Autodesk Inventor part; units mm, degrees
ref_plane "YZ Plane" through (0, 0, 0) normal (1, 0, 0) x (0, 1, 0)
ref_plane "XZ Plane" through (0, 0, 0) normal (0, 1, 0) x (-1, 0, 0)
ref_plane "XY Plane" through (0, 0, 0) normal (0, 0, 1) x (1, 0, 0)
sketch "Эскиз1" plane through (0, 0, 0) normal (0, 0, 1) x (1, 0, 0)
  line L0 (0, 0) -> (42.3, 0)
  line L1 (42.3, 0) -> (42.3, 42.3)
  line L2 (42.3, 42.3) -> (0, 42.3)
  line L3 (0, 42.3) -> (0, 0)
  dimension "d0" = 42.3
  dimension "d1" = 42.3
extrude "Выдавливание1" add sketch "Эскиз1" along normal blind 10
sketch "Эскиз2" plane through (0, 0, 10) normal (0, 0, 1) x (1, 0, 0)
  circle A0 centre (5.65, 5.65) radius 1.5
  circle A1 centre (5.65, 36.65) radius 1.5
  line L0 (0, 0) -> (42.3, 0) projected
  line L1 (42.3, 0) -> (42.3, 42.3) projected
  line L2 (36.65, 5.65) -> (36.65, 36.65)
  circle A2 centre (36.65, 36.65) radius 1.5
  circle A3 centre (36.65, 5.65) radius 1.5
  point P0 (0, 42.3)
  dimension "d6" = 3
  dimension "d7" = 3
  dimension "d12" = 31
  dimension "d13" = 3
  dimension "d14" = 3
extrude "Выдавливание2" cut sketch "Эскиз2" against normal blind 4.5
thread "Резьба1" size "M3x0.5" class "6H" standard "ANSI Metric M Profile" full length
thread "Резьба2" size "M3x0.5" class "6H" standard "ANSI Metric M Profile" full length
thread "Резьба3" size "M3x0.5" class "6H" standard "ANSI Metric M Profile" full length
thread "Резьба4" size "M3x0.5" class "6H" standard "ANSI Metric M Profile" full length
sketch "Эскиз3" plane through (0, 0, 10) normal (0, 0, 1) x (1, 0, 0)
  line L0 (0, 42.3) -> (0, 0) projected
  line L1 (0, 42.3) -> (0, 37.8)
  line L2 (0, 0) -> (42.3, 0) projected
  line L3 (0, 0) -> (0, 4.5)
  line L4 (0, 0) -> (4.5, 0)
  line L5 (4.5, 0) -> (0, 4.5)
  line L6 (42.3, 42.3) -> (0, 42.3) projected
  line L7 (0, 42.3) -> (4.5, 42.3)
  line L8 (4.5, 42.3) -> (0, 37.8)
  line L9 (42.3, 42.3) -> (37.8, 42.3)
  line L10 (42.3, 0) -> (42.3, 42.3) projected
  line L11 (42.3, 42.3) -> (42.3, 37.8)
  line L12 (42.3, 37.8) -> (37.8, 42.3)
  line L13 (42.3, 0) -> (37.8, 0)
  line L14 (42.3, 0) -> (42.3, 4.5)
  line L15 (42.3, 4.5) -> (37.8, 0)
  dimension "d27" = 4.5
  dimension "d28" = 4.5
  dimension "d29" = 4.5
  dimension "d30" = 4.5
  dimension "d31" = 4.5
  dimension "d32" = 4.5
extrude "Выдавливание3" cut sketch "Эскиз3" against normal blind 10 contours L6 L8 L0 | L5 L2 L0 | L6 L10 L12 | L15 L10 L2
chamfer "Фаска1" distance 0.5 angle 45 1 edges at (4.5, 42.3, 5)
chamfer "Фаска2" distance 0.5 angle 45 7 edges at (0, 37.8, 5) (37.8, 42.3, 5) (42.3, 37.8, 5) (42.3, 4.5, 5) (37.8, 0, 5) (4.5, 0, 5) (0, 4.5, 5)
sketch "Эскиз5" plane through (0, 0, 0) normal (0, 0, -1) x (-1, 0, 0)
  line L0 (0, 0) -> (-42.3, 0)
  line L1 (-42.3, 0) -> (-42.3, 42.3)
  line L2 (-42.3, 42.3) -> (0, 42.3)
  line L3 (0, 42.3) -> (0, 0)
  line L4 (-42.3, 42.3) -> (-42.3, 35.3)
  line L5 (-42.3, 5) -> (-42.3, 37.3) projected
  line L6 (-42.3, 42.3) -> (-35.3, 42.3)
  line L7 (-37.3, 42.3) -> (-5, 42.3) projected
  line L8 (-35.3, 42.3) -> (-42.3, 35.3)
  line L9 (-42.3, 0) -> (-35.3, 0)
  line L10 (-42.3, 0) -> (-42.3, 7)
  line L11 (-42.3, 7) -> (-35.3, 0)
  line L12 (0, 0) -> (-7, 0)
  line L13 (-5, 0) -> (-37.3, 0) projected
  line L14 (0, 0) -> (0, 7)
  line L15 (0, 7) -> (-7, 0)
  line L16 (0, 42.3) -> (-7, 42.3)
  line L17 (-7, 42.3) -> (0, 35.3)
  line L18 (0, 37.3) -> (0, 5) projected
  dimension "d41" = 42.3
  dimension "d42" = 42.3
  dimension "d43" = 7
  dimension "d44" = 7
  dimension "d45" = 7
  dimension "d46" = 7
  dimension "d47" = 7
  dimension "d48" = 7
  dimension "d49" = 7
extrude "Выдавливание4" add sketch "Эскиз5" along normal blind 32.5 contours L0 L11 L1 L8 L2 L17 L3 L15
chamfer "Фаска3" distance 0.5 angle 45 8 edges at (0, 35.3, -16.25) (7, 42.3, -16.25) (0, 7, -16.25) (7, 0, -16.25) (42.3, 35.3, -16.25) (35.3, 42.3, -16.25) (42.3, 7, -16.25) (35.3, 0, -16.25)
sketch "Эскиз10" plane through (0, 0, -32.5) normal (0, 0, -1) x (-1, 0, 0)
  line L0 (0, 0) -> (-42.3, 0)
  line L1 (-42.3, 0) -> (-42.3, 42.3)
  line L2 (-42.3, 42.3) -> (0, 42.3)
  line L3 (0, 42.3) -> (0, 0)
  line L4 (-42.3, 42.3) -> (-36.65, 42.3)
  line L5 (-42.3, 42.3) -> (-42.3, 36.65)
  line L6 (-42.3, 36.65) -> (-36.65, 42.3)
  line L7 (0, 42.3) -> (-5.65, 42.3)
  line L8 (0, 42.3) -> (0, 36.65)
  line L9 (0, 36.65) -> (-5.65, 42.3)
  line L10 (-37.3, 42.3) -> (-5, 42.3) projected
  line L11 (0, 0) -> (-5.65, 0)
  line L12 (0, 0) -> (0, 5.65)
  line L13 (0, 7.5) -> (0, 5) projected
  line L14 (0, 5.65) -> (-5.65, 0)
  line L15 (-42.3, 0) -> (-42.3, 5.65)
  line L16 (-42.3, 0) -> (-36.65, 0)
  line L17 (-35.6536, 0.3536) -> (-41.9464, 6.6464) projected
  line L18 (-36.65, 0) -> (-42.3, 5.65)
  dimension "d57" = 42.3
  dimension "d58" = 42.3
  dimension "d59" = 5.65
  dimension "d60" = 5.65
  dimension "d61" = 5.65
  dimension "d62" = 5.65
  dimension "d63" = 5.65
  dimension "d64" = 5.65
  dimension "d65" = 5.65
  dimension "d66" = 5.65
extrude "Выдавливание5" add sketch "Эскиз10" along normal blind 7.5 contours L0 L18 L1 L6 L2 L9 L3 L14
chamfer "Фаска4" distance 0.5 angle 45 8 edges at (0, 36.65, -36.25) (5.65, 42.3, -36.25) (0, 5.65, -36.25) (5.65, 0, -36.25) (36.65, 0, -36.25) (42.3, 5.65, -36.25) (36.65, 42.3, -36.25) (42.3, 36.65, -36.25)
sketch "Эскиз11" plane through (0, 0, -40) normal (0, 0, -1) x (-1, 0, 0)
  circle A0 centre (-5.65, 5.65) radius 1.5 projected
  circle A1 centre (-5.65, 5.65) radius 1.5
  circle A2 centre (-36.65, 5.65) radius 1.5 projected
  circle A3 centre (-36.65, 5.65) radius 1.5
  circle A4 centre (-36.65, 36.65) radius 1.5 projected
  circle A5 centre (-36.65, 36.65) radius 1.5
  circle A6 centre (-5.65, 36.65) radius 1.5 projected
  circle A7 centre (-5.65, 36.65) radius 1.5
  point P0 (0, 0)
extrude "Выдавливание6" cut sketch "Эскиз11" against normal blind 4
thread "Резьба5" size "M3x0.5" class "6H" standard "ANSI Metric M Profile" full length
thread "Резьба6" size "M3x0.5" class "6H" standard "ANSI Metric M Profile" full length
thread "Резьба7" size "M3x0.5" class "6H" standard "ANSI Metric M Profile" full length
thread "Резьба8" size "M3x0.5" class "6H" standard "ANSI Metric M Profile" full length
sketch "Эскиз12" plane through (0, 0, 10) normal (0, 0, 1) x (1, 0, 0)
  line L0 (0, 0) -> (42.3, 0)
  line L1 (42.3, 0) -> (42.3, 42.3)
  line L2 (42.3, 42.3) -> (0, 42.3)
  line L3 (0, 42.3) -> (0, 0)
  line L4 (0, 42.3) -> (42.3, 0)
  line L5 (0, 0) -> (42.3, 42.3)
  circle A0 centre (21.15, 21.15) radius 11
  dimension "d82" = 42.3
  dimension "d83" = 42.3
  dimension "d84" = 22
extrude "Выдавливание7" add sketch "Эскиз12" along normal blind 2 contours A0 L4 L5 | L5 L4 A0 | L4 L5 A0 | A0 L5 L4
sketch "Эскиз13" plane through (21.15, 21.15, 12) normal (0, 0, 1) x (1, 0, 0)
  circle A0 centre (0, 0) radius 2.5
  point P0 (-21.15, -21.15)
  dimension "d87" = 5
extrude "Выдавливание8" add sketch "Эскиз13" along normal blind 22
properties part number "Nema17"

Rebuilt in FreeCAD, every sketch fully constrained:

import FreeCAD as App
import Part
import Sketcher
from FreeCAD import Vector
Q = App.Units.Quantity


def edges_at(feature, points):
    """Names of the edges that pass closest to the given points."""
    edges = feature.Shape.Edges
    near = lambda p: min(range(len(edges)), key=lambda i: edges[i].distToShape(Part.Vertex(*p))[0])
    return sorted({f"Edge{near(p) + 1}" for p in points})


def add_polygon(sketch, points):
    """Adds a closed chain of lines whose ends are joined by coincident constraints."""
    first, n = sketch.GeometryCount, len(points)
    for a, b in zip(points, points[1:] + points[:1]):
        sketch.addGeometry(Part.LineSegment(App.Vector(*a, 0), App.Vector(*b, 0)), False)
    for i in range(n):
        sketch.addConstraint(Sketcher.Constraint("Coincident", first + i, 2, first + (i + 1) % n, 1))

doc = App.newDocument("Part")
params = doc.addObject("Spreadsheet::Sheet", "Params")
for row, (alias, value) in enumerate([
    ("sketch1_width", "42.3 mm"),
    ("pad1_length", "10 mm"),
    ("sketch2_diameter", "3 mm"),
    ("pocket1_length", "4.5 mm"),
    ("sketch3_width", "4.5 mm"),
    ("pocket2_length", "10 mm"),
    ("chamfer_size", "0.5 mm"),
    ("chamfer2_size", "0.5 mm"),
    ("pad2_length", "32.5 mm"),
    ("chamfer3_size", "0.5 mm"),
    ("sketch5_width", "31 mm"),
    ("pad3_length", "7.5 mm"),
    ("chamfer4_size", "0.5 mm"),
    ("sketch6_diameter", "3 mm"),
    ("pocket3_length", "4 mm"),
    ("sketch7_diameter", "22 mm"),
    ("pad4_length", "2 mm"),
    ("sketch8_diameter", "5 mm"),
    ("pad5_length", "22 mm"),
], start=1):
    params.set(f"A{row}", alias)
    params.set(f"B{row}", "=" + value)
    params.setAlias(f"B{row}", alias)

body = doc.addObject("PartDesign::Body", "Body")

# Sketch on XY plane
sketch1 = body.newObject("Sketcher::SketchObject", "Sketch")
sketch1.AttachmentSupport = (doc.getObject("XY_Plane"), [""])
sketch1.MapMode = "FlatFace"
add_polygon(sketch1, [(0, 42.3), (0, 0), (42.3, 0), (42.3, 42.3)])  # lines 0-3
sketch1.addConstraint([
    Sketcher.Constraint("Vertical", 0),
    Sketcher.Constraint("Horizontal", 1),
    Sketcher.Constraint("Vertical", 2),
    Sketcher.Constraint("Horizontal", 3),
    Sketcher.Constraint("Coincident", 0, 2, -1, 1),
    Sketcher.Constraint("Equal", 3, 0),
    Sketcher.Constraint("DistanceX", 1, 1, 1, 2, Q("42.3 mm")),
])
sketch1.setExpression("Constraints[10]", "Params.sketch1_width")
pad1 = body.newObject("PartDesign::Pad", "Pad")
pad1.Profile = sketch1
pad1.setExpression("Length", "Params.pad1_length")

# Sketch on XY plane
sketch2 = body.newObject("Sketcher::SketchObject", "Sketch001")
sketch2.AttachmentSupport = (doc.getObject("XY_Plane"), [""])
sketch2.MapMode = "FlatFace"
sketch2.AttachmentOffset = App.Placement(Vector(0, 0, 10), App.Rotation())
sketch2.addGeometry([
    Part.Circle(Vector(5.65, 5.65, 0), Vector(0, 0, 1), 1.5),
    Part.Circle(Vector(5.65, 36.65, 0), Vector(0, 0, 1), 1.5),
    Part.Circle(Vector(36.65, 36.65, 0), Vector(0, 0, 1), 1.5),
    Part.Circle(Vector(36.65, 5.65, 0), Vector(0, 0, 1), 1.5),
], False)
sketch2.addConstraint([
    Sketcher.Constraint("Equal", 0, 1),
    Sketcher.Constraint("Equal", 1, 2),
    Sketcher.Constraint("Equal", 2, 3),
    Sketcher.Constraint("Horizontal", 1, 3, 2, 3),
    Sketcher.Constraint("Horizontal", 0, 3, 3, 3),
    Sketcher.Constraint("Vertical", 0, 3, 1, 3),
    Sketcher.Constraint("Vertical", 2, 3, 3, 3),
    Sketcher.Constraint("Diameter", 0, Q("3 mm")),
    Sketcher.Constraint("DistanceY", 0, 3, 1, 3, Q("31 mm")),
    Sketcher.Constraint("DistanceX", 1, 3, 2, 3, Q("31 mm")),
    Sketcher.Constraint("DistanceX", -1, 1, 0, 3, Q("5.65 mm")),
    Sketcher.Constraint("DistanceY", -1, 1, 0, 3, Q("5.65 mm")),
])
sketch2.setExpression("Constraints[7]", "Params.sketch2_diameter")
pocket1 = body.newObject("PartDesign::Pocket", "Pocket")
pocket1.Profile = sketch2
pocket1.setExpression("Length", "Params.pocket1_length")

# Sketch on XY plane
sketch3 = body.newObject("Sketcher::SketchObject", "Sketch002")
sketch3.AttachmentSupport = (doc.getObject("XY_Plane"), [""])
sketch3.MapMode = "FlatFace"
sketch3.AttachmentOffset = App.Placement(Vector(0, 0, 10), App.Rotation())
add_polygon(sketch3, [(4.5, 42.3), (0, 42.3), (0, 37.8)])  # lines 0-2
add_polygon(sketch3, [(4.5, 0), (0, 4.5), (0, 0)])  # lines 3-5
add_polygon(sketch3, [(42.3, 42.3), (37.8, 42.3), (42.3, 37.8)])  # lines 6-8
add_polygon(sketch3, [(42.3, 4.5), (37.8, 0), (42.3, 0)])  # lines 9-11
sketch3.addConstraint([
    Sketcher.Constraint("Horizontal", 0),
    Sketcher.Constraint("Vertical", 1),
    Sketcher.Constraint("Vertical", 4),
    Sketcher.Constraint("Horizontal", 5),
    Sketcher.Constraint("Horizontal", 6),
    Sketcher.Constraint("Vertical", 8),
    Sketcher.Constraint("Horizontal", 10),
    Sketcher.Constraint("Vertical", 11),
    Sketcher.Constraint("Coincident", 4, 2, -1, 1),
    Sketcher.Constraint("PointOnObject", 0, 2, -2),
    Sketcher.Constraint("PointOnObject", 9, 2, -1),
    Sketcher.Constraint("Perpendicular", 2, 3),
    Sketcher.Constraint("Parallel", 3, 7),
    Sketcher.Constraint("Perpendicular", 7, 9),
    Sketcher.Constraint("Horizontal", 2, 2, 6, 2),
    Sketcher.Constraint("Horizontal", 1, 2, 7, 2),
    Sketcher.Constraint("Horizontal", 3, 2, 11, 2),
    Sketcher.Constraint("Vertical", 2, 2, 5, 2),
    Sketcher.Constraint("Vertical", 6, 2, 9, 2),
    Sketcher.Constraint("Vertical", 8, 2, 10, 2),
    Sketcher.Constraint("DistanceX", 0, 2, 0, 1, Q("4.5 mm")),
    Sketcher.Constraint("DistanceY", -1, 1, 0, 2, Q("42.3 mm")),
    Sketcher.Constraint("DistanceX", -1, 1, 6, 2, Q("37.8 mm")),
])
sketch3.setExpression("Constraints[32]", "Params.sketch3_width")
pocket2 = body.newObject("PartDesign::Pocket", "Pocket001")
pocket2.Profile = sketch3
pocket2.setExpression("Length", "Params.pocket2_length")
doc.recompute()

chamfer = body.newObject("PartDesign::Chamfer", "Chamfer")
chamfer.Base = (pocket2, edges_at(pocket2, [(4.5, 42.3, 5)]))
chamfer.setExpression("Size", "Params.chamfer_size")
doc.recompute()

chamfer2 = body.newObject("PartDesign::Chamfer", "Chamfer001")
chamfer2.Base = (chamfer, edges_at(chamfer, [
    (0, 37.8, 5),
    (37.8, 42.3, 5),
    (42.3, 37.8, 5),
    (42.3, 4.5, 5),
    (37.8, 0, 5),
    (4.5, 0, 5),
    (0, 4.5, 5),
]))
chamfer2.setExpression("Size", "Params.chamfer2_size")

# Sketch on XY plane
sketch4 = body.newObject("Sketcher::SketchObject", "Sketch003")
sketch4.AttachmentSupport = (doc.getObject("XY_Plane"), [""])
sketch4.MapMode = "FlatFace"
add_polygon(sketch4, [(35.3, 0), (7, 0), (0, 7), (0, 35.3), (7, 42.3), (35.3, 42.3), (42.3, 35.3), (42.3, 7)])  # lines 0-7
sketch4.addConstraint([
    Sketcher.Constraint("Horizontal", 0),
    Sketcher.Constraint("Vertical", 2),
    Sketcher.Constraint("Horizontal", 4),
    Sketcher.Constraint("Vertical", 6),
    Sketcher.Constraint("PointOnObject", 0, 2, -1),
    Sketcher.Constraint("PointOnObject", 1, 2, -2),
    Sketcher.Constraint("Perpendicular", 1, 3),
    Sketcher.Constraint("Perpendicular", 3, 5),
    Sketcher.Constraint("Perpendicular", 5, 7),
    Sketcher.Constraint("Horizontal", 2, 2, 5, 2),
    Sketcher.Constraint("Horizontal", 1, 2, 6, 2),
    Sketcher.Constraint("Vertical", 0, 2, 3, 2),
    Sketcher.Constraint("Vertical", 4, 2, 7, 2),
    Sketcher.Constraint("Equal", 4, 2),
    Sketcher.Constraint("DistanceX", -1, 1, 0, 2, Q("7 mm")),
    Sketcher.Constraint("DistanceY", -1, 1, 3, 2, Q("42.3 mm")),
])
pad2 = body.newObject("PartDesign::Pad", "Pad001")
pad2.Profile = sketch4
pad2.setExpression("Length", "Params.pad2_length")
pad2.Reversed = True
doc.recompute()

chamfer3 = body.newObject("PartDesign::Chamfer", "Chamfer002")
chamfer3.Base = (pad2, edges_at(pad2, [
    (0, 35.3, -16.25),
    (7, 42.3, -16.25),
    (0, 7, -16.25),
    (7, 0, -16.25),
    (42.3, 35.3, -16.25),
    (35.3, 42.3, -16.25),
    (42.3, 7, -16.25),
    (35.3, 0, -16.25),
]))
chamfer3.setExpression("Size", "Params.chamfer3_size")

# Sketch on XY plane
sketch5 = body.newObject("Sketcher::SketchObject", "Sketch004")
sketch5.AttachmentSupport = (doc.getObject("XY_Plane"), [""])
sketch5.MapMode = "FlatFace"
sketch5.AttachmentOffset = App.Placement(Vector(0, 0, -32.5), App.Rotation())
add_polygon(sketch5, [(36.65, 0), (5.65, 0), (0, 5.65), (0, 36.65), (5.65, 42.3), (36.65, 42.3), (42.3, 36.65), (42.3, 5.65)])  # lines 0-7
sketch5.addConstraint([
    Sketcher.Constraint("Horizontal", 0),
    Sketcher.Constraint("Vertical", 2),
    Sketcher.Constraint("Horizontal", 4),
    Sketcher.Constraint("Vertical", 6),
    Sketcher.Constraint("PointOnObject", 0, 2, -1),
    Sketcher.Constraint("PointOnObject", 1, 2, -2),
    Sketcher.Constraint("Perpendicular", 1, 3),
    Sketcher.Constraint("Perpendicular", 3, 5),
    Sketcher.Constraint("Perpendicular", 5, 7),
    Sketcher.Constraint("Horizontal", 2, 2, 5, 2),
    Sketcher.Constraint("Horizontal", 1, 2, 6, 2),
    Sketcher.Constraint("Vertical", 0, 2, 3, 2),
    Sketcher.Constraint("Vertical", 4, 2, 7, 2),
    Sketcher.Constraint("Equal", 4, 2),
    Sketcher.Constraint("DistanceY", -1, 1, 3, 2, Q("42.3 mm")),
    Sketcher.Constraint("DistanceX", 0, 2, 0, 1, Q("31 mm")),
])
sketch5.setExpression("Constraints[23]", "Params.sketch5_width")
pad3 = body.newObject("PartDesign::Pad", "Pad002")
pad3.Profile = sketch5
pad3.setExpression("Length", "Params.pad3_length")
pad3.Reversed = True
doc.recompute()

chamfer4 = body.newObject("PartDesign::Chamfer", "Chamfer003")
chamfer4.Base = (pad3, edges_at(pad3, [
    (0, 36.65, -36.25),
    (5.65, 42.3, -36.25),
    (0, 5.65, -36.25),
    (5.65, 0, -36.25),
    (36.65, 0, -36.25),
    (42.3, 5.65, -36.25),
    (36.65, 42.3, -36.25),
    (42.3, 36.65, -36.25),
]))
chamfer4.setExpression("Size", "Params.chamfer4_size")

# Sketch on XY plane
sketch6 = body.newObject("Sketcher::SketchObject", "Sketch005")
sketch6.AttachmentSupport = (doc.getObject("XY_Plane"), [""])
sketch6.MapMode = "FlatFace"
sketch6.AttachmentOffset = App.Placement(Vector(0, 0, -40), App.Rotation())
sketch6.addGeometry([
    Part.Circle(Vector(5.65, 5.65, 0), Vector(0, 0, 1), 1.5),
    Part.Circle(Vector(36.65, 5.65, 0), Vector(0, 0, 1), 1.5),
    Part.Circle(Vector(36.65, 36.65, 0), Vector(0, 0, 1), 1.5),
    Part.Circle(Vector(5.65, 36.65, 0), Vector(0, 0, 1), 1.5),
], False)
sketch6.addConstraint([
    Sketcher.Constraint("Equal", 0, 1),
    Sketcher.Constraint("Equal", 1, 2),
    Sketcher.Constraint("Equal", 2, 3),
    Sketcher.Constraint("Horizontal", 0, 3, 1, 3),
    Sketcher.Constraint("Horizontal", 2, 3, 3, 3),
    Sketcher.Constraint("Vertical", 1, 3, 2, 3),
    Sketcher.Constraint("Vertical", 0, 3, 3, 3),
    Sketcher.Constraint("Diameter", 0, Q("3 mm")),
    Sketcher.Constraint("DistanceX", 0, 3, 1, 3, Q("31 mm")),
    Sketcher.Constraint("DistanceY", 1, 3, 2, 3, Q("31 mm")),
    Sketcher.Constraint("DistanceX", -1, 1, 0, 3, Q("5.65 mm")),
    Sketcher.Constraint("DistanceY", -1, 1, 0, 3, Q("5.65 mm")),
])
sketch6.setExpression("Constraints[7]", "Params.sketch6_diameter")
pocket3 = body.newObject("PartDesign::Pocket", "Pocket002")
pocket3.Profile = sketch6
pocket3.setExpression("Length", "Params.pocket3_length")
pocket3.Reversed = True

# Sketch on XY plane
sketch7 = body.newObject("Sketcher::SketchObject", "Sketch006")
sketch7.AttachmentSupport = (doc.getObject("XY_Plane"), [""])
sketch7.MapMode = "FlatFace"
sketch7.AttachmentOffset = App.Placement(Vector(0, 0, 10), App.Rotation())
sketch7.addGeometry(Part.Circle(Vector(21.15, 21.15, 0), Vector(0, 0, 1), 11), False)
sketch7.addConstraint([
    Sketcher.Constraint("Diameter", 0, Q("22 mm")),
    Sketcher.Constraint("DistanceX", -1, 1, 0, 3, Q("21.15 mm")),
    Sketcher.Constraint("DistanceY", -1, 1, 0, 3, Q("21.15 mm")),
])
sketch7.setExpression("Constraints[0]", "Params.sketch7_diameter")
pad4 = body.newObject("PartDesign::Pad", "Pad003")
pad4.Profile = sketch7
pad4.setExpression("Length", "Params.pad4_length")

# Sketch on XY plane
sketch8 = body.newObject("Sketcher::SketchObject", "Sketch007")
sketch8.AttachmentSupport = (doc.getObject("XY_Plane"), [""])
sketch8.MapMode = "FlatFace"
sketch8.AttachmentOffset = App.Placement(Vector(0, 0, 12), App.Rotation())
sketch8.addGeometry(Part.Circle(Vector(21.15, 21.15, 0), Vector(0, 0, 1), 2.5), False)
sketch8.addConstraint([
    Sketcher.Constraint("Diameter", 0, Q("5 mm")),
    Sketcher.Constraint("DistanceX", -1, 1, 0, 3, Q("21.15 mm")),
    Sketcher.Constraint("DistanceY", -1, 1, 0, 3, Q("21.15 mm")),
])
sketch8.setExpression("Constraints[0]", "Params.sketch8_diameter")
pad5 = body.newObject("PartDesign::Pad", "Pad004")
pad5.Profile = sketch8
pad5.setExpression("Length", "Params.pad5_length")

doc.recompute()
